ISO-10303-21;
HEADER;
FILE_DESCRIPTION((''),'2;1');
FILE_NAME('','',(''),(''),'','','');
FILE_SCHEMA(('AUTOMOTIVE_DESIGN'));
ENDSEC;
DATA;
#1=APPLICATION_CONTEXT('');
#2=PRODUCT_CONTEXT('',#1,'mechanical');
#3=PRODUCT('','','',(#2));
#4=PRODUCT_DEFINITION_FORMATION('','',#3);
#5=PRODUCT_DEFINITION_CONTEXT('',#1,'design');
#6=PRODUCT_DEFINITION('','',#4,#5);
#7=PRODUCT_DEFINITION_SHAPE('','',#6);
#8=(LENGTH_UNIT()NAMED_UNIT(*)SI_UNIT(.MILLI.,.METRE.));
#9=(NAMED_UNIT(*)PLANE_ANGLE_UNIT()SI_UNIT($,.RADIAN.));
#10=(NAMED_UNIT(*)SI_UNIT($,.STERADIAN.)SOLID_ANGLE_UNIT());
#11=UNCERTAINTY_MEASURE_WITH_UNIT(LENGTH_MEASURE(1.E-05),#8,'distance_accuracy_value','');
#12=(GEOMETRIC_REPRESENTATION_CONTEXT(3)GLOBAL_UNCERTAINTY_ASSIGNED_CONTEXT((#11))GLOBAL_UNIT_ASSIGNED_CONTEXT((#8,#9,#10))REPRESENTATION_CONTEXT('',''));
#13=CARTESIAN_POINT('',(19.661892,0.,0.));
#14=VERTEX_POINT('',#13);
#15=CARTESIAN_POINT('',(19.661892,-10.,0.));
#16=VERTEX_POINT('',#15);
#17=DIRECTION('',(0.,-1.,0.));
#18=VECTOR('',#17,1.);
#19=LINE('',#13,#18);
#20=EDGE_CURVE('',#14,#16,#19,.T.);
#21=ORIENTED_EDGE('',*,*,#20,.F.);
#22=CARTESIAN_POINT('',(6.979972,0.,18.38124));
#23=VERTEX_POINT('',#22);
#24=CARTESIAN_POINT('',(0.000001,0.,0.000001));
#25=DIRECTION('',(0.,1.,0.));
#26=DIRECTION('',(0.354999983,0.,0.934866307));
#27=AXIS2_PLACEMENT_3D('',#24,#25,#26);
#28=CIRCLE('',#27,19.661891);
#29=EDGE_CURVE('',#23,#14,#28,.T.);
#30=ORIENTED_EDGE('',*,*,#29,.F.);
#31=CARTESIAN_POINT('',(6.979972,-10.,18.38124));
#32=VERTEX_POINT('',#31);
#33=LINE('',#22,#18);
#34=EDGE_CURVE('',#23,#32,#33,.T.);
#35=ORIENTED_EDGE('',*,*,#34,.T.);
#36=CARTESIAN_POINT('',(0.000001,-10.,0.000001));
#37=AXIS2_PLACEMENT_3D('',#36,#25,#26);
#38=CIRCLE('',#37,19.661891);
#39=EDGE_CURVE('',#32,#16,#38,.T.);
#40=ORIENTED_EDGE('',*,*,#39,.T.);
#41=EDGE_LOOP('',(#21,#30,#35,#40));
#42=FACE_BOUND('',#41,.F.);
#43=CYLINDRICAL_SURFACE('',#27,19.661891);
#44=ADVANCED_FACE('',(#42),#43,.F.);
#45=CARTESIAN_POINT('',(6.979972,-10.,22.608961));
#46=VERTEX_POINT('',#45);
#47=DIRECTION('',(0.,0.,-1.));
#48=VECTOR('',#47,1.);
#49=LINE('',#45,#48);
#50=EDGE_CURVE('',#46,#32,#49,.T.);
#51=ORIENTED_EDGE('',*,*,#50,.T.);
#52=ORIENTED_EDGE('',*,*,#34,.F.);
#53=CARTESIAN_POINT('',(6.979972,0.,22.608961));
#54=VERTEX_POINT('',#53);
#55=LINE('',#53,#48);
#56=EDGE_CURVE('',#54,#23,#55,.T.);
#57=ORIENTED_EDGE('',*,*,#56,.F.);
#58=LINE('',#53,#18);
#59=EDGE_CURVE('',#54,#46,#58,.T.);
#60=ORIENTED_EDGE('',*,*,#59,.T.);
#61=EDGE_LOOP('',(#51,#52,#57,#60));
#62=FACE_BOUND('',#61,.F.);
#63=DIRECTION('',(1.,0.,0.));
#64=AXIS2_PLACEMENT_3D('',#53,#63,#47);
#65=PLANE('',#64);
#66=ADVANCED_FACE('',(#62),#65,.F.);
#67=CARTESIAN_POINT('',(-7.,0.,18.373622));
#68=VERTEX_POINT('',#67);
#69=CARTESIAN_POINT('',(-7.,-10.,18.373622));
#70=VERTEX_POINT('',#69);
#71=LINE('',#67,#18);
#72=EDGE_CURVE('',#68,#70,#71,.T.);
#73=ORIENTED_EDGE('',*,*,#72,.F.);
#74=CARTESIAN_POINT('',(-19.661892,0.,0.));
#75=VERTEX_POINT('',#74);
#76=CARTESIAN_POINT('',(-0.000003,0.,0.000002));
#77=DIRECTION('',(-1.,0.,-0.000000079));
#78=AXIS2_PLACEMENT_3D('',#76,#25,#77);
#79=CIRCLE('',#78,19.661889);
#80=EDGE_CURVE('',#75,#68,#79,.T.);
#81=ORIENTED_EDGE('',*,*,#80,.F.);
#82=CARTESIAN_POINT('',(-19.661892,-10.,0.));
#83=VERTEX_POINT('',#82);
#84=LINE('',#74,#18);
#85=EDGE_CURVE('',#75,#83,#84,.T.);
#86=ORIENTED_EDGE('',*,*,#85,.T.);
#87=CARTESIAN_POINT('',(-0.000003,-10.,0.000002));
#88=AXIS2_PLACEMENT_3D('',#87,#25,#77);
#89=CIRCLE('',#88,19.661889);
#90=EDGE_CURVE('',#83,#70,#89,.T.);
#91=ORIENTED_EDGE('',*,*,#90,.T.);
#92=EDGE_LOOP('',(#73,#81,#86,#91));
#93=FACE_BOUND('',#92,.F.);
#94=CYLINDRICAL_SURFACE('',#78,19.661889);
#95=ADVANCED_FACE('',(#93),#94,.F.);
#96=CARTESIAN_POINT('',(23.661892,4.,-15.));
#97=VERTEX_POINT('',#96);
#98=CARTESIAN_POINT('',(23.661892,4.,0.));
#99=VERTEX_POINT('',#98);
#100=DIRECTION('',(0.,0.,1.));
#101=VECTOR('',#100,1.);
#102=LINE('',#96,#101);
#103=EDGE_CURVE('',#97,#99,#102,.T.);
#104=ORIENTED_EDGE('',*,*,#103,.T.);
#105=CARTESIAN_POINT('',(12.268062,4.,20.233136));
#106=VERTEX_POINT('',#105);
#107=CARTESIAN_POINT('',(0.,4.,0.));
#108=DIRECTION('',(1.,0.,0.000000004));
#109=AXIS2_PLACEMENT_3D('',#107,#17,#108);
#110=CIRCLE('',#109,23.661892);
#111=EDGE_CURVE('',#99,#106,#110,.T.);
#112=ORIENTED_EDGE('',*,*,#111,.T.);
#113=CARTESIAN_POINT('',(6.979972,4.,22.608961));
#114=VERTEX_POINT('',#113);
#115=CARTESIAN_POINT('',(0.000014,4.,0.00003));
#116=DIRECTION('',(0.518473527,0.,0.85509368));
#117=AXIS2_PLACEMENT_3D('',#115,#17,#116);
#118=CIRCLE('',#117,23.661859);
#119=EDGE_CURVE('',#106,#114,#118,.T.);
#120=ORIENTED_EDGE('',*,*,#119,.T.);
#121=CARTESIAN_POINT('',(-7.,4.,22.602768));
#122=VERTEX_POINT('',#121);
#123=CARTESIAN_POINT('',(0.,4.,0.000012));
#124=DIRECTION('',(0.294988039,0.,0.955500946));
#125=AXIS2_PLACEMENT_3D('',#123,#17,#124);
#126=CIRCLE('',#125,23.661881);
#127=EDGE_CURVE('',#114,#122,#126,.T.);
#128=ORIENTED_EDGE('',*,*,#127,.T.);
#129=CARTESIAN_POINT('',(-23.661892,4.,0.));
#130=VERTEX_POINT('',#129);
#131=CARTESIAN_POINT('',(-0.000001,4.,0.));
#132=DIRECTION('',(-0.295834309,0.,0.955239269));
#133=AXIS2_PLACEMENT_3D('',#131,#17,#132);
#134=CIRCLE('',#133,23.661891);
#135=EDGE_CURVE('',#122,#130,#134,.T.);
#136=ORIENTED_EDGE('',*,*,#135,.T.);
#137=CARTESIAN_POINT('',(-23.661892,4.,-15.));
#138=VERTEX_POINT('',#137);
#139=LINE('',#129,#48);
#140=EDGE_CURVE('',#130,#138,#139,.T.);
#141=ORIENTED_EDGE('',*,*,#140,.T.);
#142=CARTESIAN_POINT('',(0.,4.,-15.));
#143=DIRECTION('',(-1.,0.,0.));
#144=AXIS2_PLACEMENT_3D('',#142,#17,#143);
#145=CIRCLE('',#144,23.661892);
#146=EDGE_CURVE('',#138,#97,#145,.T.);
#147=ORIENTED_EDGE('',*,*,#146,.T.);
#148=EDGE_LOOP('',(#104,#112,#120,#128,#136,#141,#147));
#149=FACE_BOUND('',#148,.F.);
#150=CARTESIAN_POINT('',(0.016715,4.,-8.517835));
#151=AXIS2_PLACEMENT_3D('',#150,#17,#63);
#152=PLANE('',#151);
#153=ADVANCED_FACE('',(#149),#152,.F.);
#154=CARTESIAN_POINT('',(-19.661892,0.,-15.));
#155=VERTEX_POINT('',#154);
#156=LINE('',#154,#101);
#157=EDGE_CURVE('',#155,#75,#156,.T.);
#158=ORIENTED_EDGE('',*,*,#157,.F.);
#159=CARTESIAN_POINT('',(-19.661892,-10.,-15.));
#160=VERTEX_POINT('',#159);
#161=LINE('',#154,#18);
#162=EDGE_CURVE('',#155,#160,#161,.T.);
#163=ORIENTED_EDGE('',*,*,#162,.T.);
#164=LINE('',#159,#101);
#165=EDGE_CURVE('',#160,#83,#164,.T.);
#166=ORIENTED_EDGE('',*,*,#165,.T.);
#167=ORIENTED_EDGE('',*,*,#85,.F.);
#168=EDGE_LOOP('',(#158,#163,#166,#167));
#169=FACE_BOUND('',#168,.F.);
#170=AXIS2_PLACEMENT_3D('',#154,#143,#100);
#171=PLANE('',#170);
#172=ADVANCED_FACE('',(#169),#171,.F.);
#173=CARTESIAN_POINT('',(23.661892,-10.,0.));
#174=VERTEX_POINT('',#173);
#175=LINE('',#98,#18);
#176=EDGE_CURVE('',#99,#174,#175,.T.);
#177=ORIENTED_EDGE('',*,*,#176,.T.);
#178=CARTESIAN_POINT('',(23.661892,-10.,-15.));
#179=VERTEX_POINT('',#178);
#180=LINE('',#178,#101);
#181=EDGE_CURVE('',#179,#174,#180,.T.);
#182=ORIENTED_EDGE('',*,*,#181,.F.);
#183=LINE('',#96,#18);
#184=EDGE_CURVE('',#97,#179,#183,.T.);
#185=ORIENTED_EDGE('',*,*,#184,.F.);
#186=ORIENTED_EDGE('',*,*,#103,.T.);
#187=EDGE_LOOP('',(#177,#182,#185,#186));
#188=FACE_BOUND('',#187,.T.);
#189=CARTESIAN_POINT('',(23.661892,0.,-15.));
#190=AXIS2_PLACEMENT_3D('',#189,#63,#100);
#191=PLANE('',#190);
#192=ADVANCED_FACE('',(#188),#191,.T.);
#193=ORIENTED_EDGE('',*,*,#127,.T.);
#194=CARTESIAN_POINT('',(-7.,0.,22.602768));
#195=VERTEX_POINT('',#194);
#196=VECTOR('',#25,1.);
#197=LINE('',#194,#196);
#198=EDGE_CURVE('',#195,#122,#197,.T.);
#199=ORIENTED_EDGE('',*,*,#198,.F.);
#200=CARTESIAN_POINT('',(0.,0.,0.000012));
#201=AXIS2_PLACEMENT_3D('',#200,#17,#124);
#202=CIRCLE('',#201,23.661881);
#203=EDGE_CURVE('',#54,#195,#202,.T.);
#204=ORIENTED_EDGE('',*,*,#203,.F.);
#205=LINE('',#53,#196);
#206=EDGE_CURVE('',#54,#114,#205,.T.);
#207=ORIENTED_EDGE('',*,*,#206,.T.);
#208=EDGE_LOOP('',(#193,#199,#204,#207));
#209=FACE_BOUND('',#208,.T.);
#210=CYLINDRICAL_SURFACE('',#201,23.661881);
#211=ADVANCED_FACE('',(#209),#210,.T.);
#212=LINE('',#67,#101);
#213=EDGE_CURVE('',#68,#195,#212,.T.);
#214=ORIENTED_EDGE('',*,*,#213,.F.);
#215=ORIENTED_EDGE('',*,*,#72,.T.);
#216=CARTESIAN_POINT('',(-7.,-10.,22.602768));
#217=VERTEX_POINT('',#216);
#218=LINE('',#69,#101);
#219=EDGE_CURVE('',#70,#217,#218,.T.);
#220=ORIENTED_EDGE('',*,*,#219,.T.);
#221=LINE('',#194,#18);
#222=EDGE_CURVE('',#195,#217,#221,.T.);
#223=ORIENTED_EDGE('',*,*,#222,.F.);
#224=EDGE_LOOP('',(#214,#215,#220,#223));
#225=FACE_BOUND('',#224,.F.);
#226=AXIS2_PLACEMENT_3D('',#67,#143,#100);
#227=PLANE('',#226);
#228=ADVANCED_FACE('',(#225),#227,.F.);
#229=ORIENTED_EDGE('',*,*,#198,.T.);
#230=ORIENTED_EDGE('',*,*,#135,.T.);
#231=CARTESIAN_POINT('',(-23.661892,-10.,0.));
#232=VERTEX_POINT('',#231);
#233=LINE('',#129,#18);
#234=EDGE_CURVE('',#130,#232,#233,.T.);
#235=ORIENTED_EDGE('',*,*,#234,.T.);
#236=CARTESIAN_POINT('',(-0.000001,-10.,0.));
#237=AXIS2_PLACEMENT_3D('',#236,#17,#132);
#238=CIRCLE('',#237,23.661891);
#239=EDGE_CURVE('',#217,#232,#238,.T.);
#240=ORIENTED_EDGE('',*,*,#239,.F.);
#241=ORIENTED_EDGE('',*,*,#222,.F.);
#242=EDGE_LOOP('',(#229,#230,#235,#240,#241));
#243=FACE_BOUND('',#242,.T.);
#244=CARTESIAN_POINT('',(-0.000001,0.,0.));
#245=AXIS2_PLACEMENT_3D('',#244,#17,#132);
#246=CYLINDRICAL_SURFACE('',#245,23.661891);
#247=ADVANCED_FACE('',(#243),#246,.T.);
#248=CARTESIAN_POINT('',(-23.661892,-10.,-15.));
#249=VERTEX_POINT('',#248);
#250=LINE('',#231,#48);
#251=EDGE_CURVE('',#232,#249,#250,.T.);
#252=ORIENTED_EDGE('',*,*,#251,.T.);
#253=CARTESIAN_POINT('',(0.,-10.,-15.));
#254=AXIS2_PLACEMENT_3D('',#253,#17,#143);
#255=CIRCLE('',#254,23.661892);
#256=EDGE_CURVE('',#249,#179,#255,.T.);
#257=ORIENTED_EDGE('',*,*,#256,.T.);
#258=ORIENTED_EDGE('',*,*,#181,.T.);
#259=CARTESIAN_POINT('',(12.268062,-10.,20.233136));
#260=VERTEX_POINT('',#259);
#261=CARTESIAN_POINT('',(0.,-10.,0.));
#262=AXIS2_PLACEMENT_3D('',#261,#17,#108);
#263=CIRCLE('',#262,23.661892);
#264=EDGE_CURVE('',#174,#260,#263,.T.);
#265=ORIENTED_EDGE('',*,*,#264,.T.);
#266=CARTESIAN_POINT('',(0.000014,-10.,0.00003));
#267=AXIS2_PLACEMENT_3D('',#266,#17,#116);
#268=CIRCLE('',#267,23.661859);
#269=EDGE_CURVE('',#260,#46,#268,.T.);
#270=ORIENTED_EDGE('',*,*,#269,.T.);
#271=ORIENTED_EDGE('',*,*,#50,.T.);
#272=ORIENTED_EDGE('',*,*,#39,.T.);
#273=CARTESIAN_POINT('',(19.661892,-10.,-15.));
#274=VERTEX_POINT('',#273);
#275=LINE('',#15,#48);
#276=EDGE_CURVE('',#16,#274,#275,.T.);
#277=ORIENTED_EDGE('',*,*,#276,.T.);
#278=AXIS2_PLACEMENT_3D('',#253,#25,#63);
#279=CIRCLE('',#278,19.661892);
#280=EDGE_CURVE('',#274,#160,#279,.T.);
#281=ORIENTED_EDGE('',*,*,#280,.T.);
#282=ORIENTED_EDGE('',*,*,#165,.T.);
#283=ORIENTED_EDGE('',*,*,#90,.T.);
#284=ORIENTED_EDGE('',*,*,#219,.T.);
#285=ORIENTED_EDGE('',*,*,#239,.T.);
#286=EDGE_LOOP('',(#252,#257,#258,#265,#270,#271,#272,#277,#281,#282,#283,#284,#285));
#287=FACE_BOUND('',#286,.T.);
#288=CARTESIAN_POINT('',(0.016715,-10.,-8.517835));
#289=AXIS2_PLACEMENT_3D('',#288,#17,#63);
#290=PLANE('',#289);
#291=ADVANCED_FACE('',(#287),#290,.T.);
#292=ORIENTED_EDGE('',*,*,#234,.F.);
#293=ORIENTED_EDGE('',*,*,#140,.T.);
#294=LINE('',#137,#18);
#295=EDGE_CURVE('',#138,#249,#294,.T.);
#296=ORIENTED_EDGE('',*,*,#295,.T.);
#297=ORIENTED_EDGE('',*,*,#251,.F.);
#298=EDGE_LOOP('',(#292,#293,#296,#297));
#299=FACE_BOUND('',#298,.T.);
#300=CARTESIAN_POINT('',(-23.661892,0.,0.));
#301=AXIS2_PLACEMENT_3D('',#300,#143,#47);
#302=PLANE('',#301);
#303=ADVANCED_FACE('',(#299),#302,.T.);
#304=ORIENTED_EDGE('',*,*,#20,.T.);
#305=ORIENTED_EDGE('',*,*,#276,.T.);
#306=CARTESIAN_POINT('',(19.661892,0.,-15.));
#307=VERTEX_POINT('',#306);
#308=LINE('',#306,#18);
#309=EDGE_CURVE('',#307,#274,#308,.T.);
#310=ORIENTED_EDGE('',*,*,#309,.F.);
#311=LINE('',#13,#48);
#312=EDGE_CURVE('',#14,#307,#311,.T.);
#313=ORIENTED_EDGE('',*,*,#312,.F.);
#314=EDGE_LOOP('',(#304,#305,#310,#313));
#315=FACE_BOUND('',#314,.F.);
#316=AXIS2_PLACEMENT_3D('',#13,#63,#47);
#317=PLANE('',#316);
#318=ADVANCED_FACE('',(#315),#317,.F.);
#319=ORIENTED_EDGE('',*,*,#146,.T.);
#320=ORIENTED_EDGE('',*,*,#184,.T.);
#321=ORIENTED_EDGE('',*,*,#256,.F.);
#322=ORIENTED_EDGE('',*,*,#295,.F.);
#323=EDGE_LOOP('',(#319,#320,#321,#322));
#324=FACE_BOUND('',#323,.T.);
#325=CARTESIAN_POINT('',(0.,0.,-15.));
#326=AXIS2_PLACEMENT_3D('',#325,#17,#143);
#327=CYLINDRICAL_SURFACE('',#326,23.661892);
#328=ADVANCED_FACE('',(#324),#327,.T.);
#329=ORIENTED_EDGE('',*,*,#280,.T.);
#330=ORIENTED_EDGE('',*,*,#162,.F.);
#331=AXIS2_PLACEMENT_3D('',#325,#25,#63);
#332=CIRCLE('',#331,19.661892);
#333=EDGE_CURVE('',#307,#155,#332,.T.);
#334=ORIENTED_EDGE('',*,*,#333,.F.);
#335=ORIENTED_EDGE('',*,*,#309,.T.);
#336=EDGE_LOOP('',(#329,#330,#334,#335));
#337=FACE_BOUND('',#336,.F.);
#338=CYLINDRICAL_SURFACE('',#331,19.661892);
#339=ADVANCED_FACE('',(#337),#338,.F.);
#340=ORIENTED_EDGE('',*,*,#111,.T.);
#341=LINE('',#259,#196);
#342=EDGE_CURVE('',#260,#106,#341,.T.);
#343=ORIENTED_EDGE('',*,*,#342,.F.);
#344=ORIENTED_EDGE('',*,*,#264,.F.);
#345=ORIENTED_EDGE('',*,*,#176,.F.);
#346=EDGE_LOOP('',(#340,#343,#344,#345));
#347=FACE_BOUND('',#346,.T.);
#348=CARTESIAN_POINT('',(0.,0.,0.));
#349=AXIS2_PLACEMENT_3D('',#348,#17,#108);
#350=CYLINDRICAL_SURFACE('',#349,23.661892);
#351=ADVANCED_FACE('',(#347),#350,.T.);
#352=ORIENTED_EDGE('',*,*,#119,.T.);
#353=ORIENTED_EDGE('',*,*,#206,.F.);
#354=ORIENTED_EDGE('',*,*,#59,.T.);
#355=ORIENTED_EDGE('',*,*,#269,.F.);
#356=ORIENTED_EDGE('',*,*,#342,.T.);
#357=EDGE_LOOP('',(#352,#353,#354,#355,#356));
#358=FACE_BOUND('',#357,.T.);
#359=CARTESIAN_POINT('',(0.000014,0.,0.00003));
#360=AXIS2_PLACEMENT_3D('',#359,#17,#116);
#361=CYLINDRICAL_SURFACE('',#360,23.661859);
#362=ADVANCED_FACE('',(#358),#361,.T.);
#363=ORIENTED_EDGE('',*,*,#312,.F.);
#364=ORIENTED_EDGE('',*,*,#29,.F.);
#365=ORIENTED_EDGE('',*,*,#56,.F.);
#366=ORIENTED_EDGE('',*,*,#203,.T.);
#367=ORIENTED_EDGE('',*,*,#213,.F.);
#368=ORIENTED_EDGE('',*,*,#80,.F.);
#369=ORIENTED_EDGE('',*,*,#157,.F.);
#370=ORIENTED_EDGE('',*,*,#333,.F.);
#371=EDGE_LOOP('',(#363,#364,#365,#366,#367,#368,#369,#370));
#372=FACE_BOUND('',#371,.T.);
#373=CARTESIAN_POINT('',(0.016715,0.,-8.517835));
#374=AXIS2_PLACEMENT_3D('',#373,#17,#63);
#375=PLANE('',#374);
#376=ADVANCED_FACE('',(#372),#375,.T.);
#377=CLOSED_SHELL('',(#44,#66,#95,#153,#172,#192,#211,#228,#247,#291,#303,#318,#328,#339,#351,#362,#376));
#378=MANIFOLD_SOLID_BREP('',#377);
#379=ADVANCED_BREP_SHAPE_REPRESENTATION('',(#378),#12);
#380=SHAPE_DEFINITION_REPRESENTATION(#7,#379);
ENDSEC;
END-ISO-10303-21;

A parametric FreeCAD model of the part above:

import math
import FreeCAD as App
import Part
import Sketcher
Q = App.Units.Quantity

doc = App.newDocument("Part")
body = doc.addObject("PartDesign::Body", "Body")

sketch1 = doc.addObject("Sketcher::SketchObject", "Sketch")
body.addObject(sketch1)
sketch1.AttachmentSupport = (doc.XZ_Plane, [""])
sketch1.MapMode = "FlatFace"
sketch1.addGeometry(Part.LineSegment(App.Vector(-19.7, -15, 0), App.Vector(-19.7, 0, 0)), False)
sketch1.addGeometry(Part.ArcOfCircle(Part.Circle(App.Vector(0, 0, 0), App.Vector(0, 0, 1), 19.7), math.radians(111), math.radians(180)), False)
sketch1.addGeometry(Part.LineSegment(App.Vector(-7, 18.4, 0), App.Vector(-7, 22.6, 0)), False)
sketch1.addGeometry(Part.ArcOfCircle(Part.Circle(App.Vector(0, 0, 0), App.Vector(0, 0, 1), 23.7), math.radians(107), math.radians(180)), False)
sketch1.addGeometry(Part.LineSegment(App.Vector(-23.7, 0, 0), App.Vector(-23.7, -15, 0)), False)
sketch1.addGeometry(Part.ArcOfCircle(Part.Circle(App.Vector(0, -15, 0), App.Vector(0, 0, 1), 23.7), math.radians(180), math.radians(360)), False)
sketch1.addGeometry(Part.LineSegment(App.Vector(23.7, -15, 0), App.Vector(23.7, 0, 0)), False)
sketch1.addGeometry(Part.ArcOfCircle(Part.Circle(App.Vector(0, 0, 0), App.Vector(0, 0, 1), 23.7), math.radians(0), math.radians(59)), False)
sketch1.addGeometry(Part.ArcOfCircle(Part.Circle(App.Vector(0, 0, 0), App.Vector(0, 0, 1), 23.7), math.radians(58.77), math.radians(72.84)), False)
sketch1.addGeometry(Part.LineSegment(App.Vector(7, 22.6, 0), App.Vector(7, 18.4, 0)), False)
sketch1.addGeometry(Part.ArcOfCircle(Part.Circle(App.Vector(0, 0, 0), App.Vector(0, 0, 1), 19.7), math.radians(0), math.radians(69)), False)
sketch1.addGeometry(Part.LineSegment(App.Vector(19.7, 0, 0), App.Vector(19.7, -15, 0)), False)
sketch1.addGeometry(Part.ArcOfCircle(Part.Circle(App.Vector(0, -15, 0), App.Vector(0, 0, 1), 19.7), math.radians(180), math.radians(360)), False)
sketch1.addConstraint(Sketcher.Constraint("Tangent", 0, 2, 1, 2))
sketch1.addConstraint(Sketcher.Constraint("Coincident", 1, 1, 2, 1))
sketch1.addConstraint(Sketcher.Constraint("Coincident", 2, 2, 3, 1))
sketch1.addConstraint(Sketcher.Constraint("Tangent", 3, 2, 4, 1))
sketch1.addConstraint(Sketcher.Constraint("Tangent", 4, 2, 5, 1))
sketch1.addConstraint(Sketcher.Constraint("Tangent", 5, 2, 6, 1))
sketch1.addConstraint(Sketcher.Constraint("Tangent", 6, 2, 7, 1))
sketch1.addConstraint(Sketcher.Constraint("Tangent", 7, 2, 8, 1))
sketch1.addConstraint(Sketcher.Constraint("Coincident", 8, 2, 9, 1))
sketch1.addConstraint(Sketcher.Constraint("Coincident", 9, 2, 10, 2))
sketch1.addConstraint(Sketcher.Constraint("Tangent", 10, 1, 11, 1))
sketch1.addConstraint(Sketcher.Constraint("Tangent", 11, 2, 12, 2))
sketch1.addConstraint(Sketcher.Constraint("Tangent", 12, 1, 0, 1))
sketch1.addConstraint(Sketcher.Constraint("Vertical", 0))
sketch1.addConstraint(Sketcher.Constraint("Vertical", 2))
sketch1.addConstraint(Sketcher.Constraint("Vertical", 4))
sketch1.addConstraint(Sketcher.Constraint("Vertical", 6))
sketch1.addConstraint(Sketcher.Constraint("Vertical", 9))
sketch1.addConstraint(Sketcher.Constraint("Vertical", 11))
sketch1.addConstraint(Sketcher.Constraint("Coincident", 1, 3, -1, 1))
sketch1.addConstraint(Sketcher.Constraint("Coincident", 3, 3, -1, 1))
sketch1.addConstraint(Sketcher.Constraint("Coincident", 7, 3, -1, 1))
sketch1.addConstraint(Sketcher.Constraint("Coincident", 10, 3, -1, 1))
sketch1.addConstraint(Sketcher.Constraint("Coincident", 12, 3, 5, 3))
sketch1.addConstraint(Sketcher.Constraint("Equal", 3, 5))
sketch1.addConstraint(Sketcher.Constraint("DistanceY", 0, 1, 0, 2, Q("15 mm")))
sketch1.addConstraint(Sketcher.Constraint("DistanceX", 1, 1, -1, 1, Q("7 mm")))
sketch1.addConstraint(Sketcher.Constraint("DistanceX", 3, 2, 0, 2, Q("4 mm")))
sketch1.addConstraint(Sketcher.Constraint("Radius", 1, Q("19.661889 mm")))
sketch1.addConstraint(Sketcher.Constraint("Radius", 8, Q("23.661859 mm")))
sketch1.addConstraint(Sketcher.Constraint("DistanceY", 9, 2, 9, 1, Q("4.227721 mm")))
sketch1.addConstraint(Sketcher.Constraint("DistanceY", 7, 2, 2, 2, Q("2.369632 mm")))
pad1 = doc.addObject("PartDesign::Pad", "Pad")
body.addObject(pad1)
pad1.Profile = sketch1
pad1.Length = 10

sketch2 = doc.addObject("Sketcher::SketchObject", "Sketch001")
body.addObject(sketch2)
sketch2.AttachmentSupport = (doc.XZ_Plane, [""])
sketch2.MapMode = "FlatFace"
sketch2.addGeometry(Part.ArcOfCircle(Part.Circle(App.Vector(-0.000001, 0, 0), App.Vector(0, 0, 1), 23.661891), math.radians(107.207573), math.radians(180.000001)), False)
sketch2.addGeometry(Part.LineSegment(App.Vector(-23.661892, 0, 0), App.Vector(-23.661892, -15, 0)), False)
sketch2.addGeometry(Part.ArcOfCircle(Part.Circle(App.Vector(0, -15, 0), App.Vector(0, 0, 1), 23.661892), math.radians(180), math.radians(360)), False)
sketch2.addGeometry(Part.LineSegment(App.Vector(23.661892, -15, 0), App.Vector(23.661892, 0, 0)), False)
sketch2.addGeometry(Part.ArcOfCircle(Part.Circle(App.Vector(0, 0, 0), App.Vector(0, 0, 1), 23.661892), math.radians(0), math.radians(58.770093)), False)
sketch2.addGeometry(Part.ArcOfCircle(Part.Circle(App.Vector(0.000014, 0.00003, 0), App.Vector(0, 0, 1), 23.661859), math.radians(58.770086), math.radians(72.8432)), False)
sketch2.addGeometry(Part.ArcOfCircle(Part.Circle(App.Vector(0, 0.000012, 0), App.Vector(0, 0, 1), 23.661881), math.radians(72.84318), math.radians(107.207583)), False)
sketch2.addConstraint(Sketcher.Constraint("Coincident", 0, 2, 1, 1))
sketch2.addConstraint(Sketcher.Constraint("Coincident", 1, 2, 2, 1))
sketch2.addConstraint(Sketcher.Constraint("Coincident", 2, 2, 3, 1))
sketch2.addConstraint(Sketcher.Constraint("Coincident", 3, 2, 4, 1))
sketch2.addConstraint(Sketcher.Constraint("Coincident", 4, 2, 5, 1))
sketch2.addConstraint(Sketcher.Constraint("Coincident", 5, 2, 6, 1))
sketch2.addConstraint(Sketcher.Constraint("Coincident", 6, 2, 0, 1))
sketch2.addConstraint(Sketcher.Constraint("Vertical", 1))
sketch2.addConstraint(Sketcher.Constraint("Vertical", 3))
sketch2.addConstraint(Sketcher.Constraint("Coincident", 0, 3, -1, 1))
sketch2.addConstraint(Sketcher.Constraint("Coincident", 4, 3, -1, 1))
sketch2.addConstraint(Sketcher.Constraint("PointOnObject", 2, 3, -2))
sketch2.addConstraint(Sketcher.Constraint("PointOnObject", 6, 3, -2))
sketch2.addConstraint(Sketcher.Constraint("PointOnObject", 0, 2, -1))
sketch2.addConstraint(Sketcher.Constraint("PointOnObject", 3, 2, -1))
sketch2.addConstraint(Sketcher.Constraint("DistanceY", 1, 2, 1, 1, Q("15 mm")))
sketch2.addConstraint(Sketcher.Constraint("DistanceY", 3, 1, 3, 2, Q("15 mm")))
sketch2.addConstraint(Sketcher.Constraint("DistanceY", 2, 3, -1, 1, Q("15 mm")))
sketch2.addConstraint(Sketcher.Constraint("DistanceX", 6, 2, -1, 1, Q("7 mm")))
sketch2.addConstraint(Sketcher.Constraint("Radius", 0, Q("23.661891 mm")))
sketch2.addConstraint(Sketcher.Constraint("Radius", 5, Q("23.661859 mm")))
sketch2.addConstraint(Sketcher.Constraint("Radius", 6, Q("23.661881 mm")))
sketch2.addConstraint(Sketcher.Constraint("DistanceY", -1, 1, 5, 2, Q("22.608961 mm")))
sketch2.addConstraint(Sketcher.Constraint("DistanceX", 4, 2, 3, 2, Q("11.39383 mm")))
pad2 = doc.addObject("PartDesign::Pad", "Pad001")
body.addObject(pad2)
pad2.Profile = sketch2
pad2.Length = 4
pad2.Reversed = True

doc.recompute()
